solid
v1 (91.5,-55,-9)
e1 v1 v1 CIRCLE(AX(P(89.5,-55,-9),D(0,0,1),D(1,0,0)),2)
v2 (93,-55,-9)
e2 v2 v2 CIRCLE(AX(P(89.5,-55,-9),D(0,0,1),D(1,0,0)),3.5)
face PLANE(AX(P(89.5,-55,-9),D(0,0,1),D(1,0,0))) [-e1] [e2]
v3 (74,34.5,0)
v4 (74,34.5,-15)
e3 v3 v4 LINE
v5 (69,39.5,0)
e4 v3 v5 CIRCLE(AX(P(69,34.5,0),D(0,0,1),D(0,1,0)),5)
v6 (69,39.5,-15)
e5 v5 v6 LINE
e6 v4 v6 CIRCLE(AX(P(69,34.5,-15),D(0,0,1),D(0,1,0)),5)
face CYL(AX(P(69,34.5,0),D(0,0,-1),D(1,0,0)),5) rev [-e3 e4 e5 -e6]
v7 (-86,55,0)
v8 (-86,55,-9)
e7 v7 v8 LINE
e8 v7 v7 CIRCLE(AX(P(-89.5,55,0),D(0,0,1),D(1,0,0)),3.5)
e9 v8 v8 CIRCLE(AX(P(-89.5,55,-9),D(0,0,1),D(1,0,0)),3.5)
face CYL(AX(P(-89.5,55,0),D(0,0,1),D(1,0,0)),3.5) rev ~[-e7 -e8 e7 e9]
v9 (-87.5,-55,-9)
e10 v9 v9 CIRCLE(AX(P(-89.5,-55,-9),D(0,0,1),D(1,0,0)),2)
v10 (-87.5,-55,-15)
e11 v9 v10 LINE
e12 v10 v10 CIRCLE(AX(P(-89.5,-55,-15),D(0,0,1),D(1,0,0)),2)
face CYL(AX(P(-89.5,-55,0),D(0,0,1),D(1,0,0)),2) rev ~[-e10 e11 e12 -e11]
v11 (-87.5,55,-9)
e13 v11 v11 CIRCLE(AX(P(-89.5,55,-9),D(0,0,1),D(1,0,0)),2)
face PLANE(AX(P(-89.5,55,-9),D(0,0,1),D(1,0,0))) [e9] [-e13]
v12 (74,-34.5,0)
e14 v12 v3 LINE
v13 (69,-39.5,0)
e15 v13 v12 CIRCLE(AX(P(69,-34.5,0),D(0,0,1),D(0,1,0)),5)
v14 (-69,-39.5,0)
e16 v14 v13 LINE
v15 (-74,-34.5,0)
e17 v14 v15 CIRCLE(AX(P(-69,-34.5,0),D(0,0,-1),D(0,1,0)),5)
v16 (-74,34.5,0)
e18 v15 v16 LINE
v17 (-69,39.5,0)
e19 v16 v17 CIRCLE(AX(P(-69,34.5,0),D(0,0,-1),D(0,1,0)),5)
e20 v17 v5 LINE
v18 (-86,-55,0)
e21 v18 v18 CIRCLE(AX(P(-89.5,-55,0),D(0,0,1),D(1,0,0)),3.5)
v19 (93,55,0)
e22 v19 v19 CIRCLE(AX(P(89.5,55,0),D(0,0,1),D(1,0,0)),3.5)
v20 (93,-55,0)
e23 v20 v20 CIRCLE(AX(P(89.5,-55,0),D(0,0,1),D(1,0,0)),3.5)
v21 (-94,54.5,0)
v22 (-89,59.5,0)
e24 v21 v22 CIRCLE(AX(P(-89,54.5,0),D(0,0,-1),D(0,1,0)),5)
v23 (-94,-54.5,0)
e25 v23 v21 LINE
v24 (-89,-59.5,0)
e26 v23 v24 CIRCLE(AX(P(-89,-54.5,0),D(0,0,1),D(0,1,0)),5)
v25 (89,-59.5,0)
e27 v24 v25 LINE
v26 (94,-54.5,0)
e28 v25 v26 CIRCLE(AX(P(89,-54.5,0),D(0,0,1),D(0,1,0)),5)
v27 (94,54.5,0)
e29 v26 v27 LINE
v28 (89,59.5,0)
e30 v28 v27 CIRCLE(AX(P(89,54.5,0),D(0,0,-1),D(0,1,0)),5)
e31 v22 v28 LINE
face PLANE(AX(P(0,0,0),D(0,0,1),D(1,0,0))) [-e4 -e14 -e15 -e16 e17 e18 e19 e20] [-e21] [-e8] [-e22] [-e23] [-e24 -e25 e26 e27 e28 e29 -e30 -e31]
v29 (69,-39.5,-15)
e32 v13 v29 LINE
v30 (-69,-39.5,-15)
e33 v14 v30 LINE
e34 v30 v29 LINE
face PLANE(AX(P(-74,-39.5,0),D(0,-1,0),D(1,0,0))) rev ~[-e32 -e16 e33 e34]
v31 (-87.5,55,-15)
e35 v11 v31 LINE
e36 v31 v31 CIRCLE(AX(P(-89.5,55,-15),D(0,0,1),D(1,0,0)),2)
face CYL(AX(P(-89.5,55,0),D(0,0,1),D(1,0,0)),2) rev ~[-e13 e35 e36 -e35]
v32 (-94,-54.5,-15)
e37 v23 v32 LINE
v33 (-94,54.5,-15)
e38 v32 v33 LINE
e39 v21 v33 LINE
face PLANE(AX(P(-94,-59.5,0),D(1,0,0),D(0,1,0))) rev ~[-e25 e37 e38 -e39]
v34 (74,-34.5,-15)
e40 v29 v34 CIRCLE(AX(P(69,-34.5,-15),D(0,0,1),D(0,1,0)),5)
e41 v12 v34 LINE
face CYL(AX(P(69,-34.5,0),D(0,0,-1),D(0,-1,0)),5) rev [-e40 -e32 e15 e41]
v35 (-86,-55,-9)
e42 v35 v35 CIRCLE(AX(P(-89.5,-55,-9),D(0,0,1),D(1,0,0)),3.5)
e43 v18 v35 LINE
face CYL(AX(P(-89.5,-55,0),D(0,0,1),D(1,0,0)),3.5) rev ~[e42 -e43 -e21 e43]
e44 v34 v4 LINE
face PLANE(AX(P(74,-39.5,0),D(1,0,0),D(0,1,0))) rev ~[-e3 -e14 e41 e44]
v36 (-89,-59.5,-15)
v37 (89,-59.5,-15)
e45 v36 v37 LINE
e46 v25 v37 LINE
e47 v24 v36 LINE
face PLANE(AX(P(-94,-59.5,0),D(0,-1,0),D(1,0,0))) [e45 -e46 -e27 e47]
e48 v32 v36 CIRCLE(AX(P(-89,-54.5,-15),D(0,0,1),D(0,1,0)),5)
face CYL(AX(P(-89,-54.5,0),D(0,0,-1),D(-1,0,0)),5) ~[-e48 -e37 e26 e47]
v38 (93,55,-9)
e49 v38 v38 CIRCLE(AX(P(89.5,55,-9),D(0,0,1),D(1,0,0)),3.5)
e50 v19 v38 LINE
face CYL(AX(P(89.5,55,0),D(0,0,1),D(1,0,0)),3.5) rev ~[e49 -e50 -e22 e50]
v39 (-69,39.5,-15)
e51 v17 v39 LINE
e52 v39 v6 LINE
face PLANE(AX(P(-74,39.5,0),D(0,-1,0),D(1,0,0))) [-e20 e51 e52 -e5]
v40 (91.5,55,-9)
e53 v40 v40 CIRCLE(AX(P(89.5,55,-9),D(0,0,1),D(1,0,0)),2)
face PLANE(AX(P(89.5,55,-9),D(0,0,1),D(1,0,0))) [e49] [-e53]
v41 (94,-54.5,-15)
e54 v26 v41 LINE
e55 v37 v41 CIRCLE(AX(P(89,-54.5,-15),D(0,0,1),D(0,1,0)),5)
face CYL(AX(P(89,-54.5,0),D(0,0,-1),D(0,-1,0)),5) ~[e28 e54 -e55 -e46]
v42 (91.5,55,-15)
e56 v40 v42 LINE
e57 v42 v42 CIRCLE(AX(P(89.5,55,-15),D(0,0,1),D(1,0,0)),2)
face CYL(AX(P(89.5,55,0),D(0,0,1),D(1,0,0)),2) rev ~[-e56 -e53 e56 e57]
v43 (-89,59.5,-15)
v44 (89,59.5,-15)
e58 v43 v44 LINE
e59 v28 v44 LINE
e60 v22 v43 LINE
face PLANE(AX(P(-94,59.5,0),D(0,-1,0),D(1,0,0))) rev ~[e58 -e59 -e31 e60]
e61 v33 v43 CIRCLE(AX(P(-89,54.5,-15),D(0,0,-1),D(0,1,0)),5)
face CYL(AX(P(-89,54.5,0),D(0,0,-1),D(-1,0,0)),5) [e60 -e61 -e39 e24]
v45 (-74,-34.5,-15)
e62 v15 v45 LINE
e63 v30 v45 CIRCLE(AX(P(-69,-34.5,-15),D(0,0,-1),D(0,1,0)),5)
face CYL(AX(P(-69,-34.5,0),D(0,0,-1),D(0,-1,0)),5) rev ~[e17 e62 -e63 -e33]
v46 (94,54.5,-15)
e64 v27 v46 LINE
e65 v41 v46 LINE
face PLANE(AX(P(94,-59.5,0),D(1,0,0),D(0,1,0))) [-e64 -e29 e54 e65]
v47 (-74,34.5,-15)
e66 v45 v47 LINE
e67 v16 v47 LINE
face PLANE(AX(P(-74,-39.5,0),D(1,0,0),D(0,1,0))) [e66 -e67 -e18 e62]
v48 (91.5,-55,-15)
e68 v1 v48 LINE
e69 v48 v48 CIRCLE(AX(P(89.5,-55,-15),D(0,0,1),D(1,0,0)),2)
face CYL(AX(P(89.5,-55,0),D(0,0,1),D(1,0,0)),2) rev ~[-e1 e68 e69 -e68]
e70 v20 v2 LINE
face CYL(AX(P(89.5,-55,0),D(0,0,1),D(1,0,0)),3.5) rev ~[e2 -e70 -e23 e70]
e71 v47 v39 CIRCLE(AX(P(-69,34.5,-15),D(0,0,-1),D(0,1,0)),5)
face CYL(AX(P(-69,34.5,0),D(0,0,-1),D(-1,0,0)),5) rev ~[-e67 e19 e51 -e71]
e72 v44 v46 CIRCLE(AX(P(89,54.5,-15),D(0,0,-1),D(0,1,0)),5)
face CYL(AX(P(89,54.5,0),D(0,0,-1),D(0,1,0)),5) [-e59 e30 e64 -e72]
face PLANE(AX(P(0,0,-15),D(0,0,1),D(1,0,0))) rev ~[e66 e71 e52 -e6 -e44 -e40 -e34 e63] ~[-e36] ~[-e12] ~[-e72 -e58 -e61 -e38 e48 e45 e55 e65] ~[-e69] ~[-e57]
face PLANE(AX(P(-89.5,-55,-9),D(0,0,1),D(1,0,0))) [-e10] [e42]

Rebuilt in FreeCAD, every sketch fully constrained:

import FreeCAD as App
import Part
import Sketcher
from FreeCAD import Vector


def edges_at(feature, points):
    """Names of the edges that pass closest to the given points."""
    edges = feature.Shape.Edges
    near = lambda p: min(range(len(edges)), key=lambda i: edges[i].distToShape(Part.Vertex(*p))[0])
    return sorted({f"Edge{near(p) + 1}" for p in points})

doc = App.newDocument("Part")
params = doc.addObject("Spreadsheet::Sheet", "Params")
for row, (alias, value) in enumerate([
    ("sketch1_diameter", "4 mm"),
    ("sketch1_width", "188 mm"),
    ("sketch1_width2", "148 mm"),
    ("sketch1_height", "119 mm"),
    ("sketch1_height2", "79 mm"),
    ("pad1_length", "15 mm"),
    ("sketch2_diameter", "7 mm"),
    ("sketch2_diameter2", "4 mm"),
    ("pocket1_length", "9 mm"),
    ("fillet_radius", "5 mm"),
], start=1):
    params.set(f"A{row}", alias)
    params.set(f"B{row}", "=" + value)
    params.setAlias(f"B{row}", alias)

body = doc.addObject("PartDesign::Body", "Body")

# Sketch on XY plane
sketch1 = doc.addObject("Sketcher::SketchObject", "Sketch")
body.addObject(sketch1)
sketch1.AttachmentSupport = (doc.XY_Plane, [""])
sketch1.MapMode = "FlatFace"
sketch1.addGeometry([
    Part.LineSegment(Vector(-94, 59.5, 0), Vector(-94, -59.5, 0)),  # 0
    Part.LineSegment(Vector(-94, -59.5, 0), Vector(94, -59.5, 0)),  # 1
    Part.LineSegment(Vector(94, -59.5, 0), Vector(94, 59.5, 0)),  # 2
    Part.LineSegment(Vector(94, 59.5, 0), Vector(-94, 59.5, 0)),  # 3
    Part.Circle(Vector(-89.5, -55, 0), Vector(0, 0, 1), 2),  # 4
    Part.Circle(Vector(89.5, -55, 0), Vector(0, 0, 1), 2),  # 5
    Part.Circle(Vector(-89.5, 55, 0), Vector(0, 0, 1), 2),  # 6
    Part.LineSegment(Vector(74, -39.5, 0), Vector(-74, -39.5, 0)),  # 7
    Part.LineSegment(Vector(-74, -39.5, 0), Vector(-74, 39.5, 0)),  # 8
    Part.LineSegment(Vector(-74, 39.5, 0), Vector(74, 39.5, 0)),  # 9
    Part.LineSegment(Vector(74, 39.5, 0), Vector(74, -39.5, 0)),  # 10
    Part.Circle(Vector(89.5, 55, 0), Vector(0, 0, 1), 2),  # 11
], False)
sketch1.addConstraint([
    Sketcher.Constraint("Coincident", 0, 2, 1, 1),
    Sketcher.Constraint("Coincident", 1, 2, 2, 1),
    Sketcher.Constraint("Coincident", 2, 2, 3, 1),
    Sketcher.Constraint("Coincident", 3, 2, 0, 1),
    Sketcher.Constraint("Coincident", 7, 2, 8, 1),
    Sketcher.Constraint("Coincident", 8, 2, 9, 1),
    Sketcher.Constraint("Coincident", 9, 2, 10, 1),
    Sketcher.Constraint("Coincident", 10, 2, 7, 1),
    Sketcher.Constraint("Vertical", 0),
    Sketcher.Constraint("Horizontal", 1),
    Sketcher.Constraint("Vertical", 2),
    Sketcher.Constraint("Horizontal", 3),
    Sketcher.Constraint("Horizontal", 7),
    Sketcher.Constraint("Vertical", 8),
    Sketcher.Constraint("Horizontal", 9),
    Sketcher.Constraint("Vertical", 10),
    Sketcher.Constraint("Equal", 4, 5),
    Sketcher.Constraint("Equal", 5, 6),
    Sketcher.Constraint("Equal", 6, 11),
    Sketcher.Constraint("Symmetric", 5, 3, 6, 3, -1, 1),
    Sketcher.Constraint("Symmetric", 4, 3, 11, 3, -1, 1),
    Sketcher.Constraint("Symmetric", 0, 2, 2, 2, -1, 1),
    Sketcher.Constraint("Symmetric", 7, 2, 9, 2, -1, 1),
    Sketcher.Constraint("Symmetric", 4, 3, 5, 3, -2),
    Sketcher.Constraint("Diameter", 4, 4.0),
    Sketcher.Constraint("DistanceX", 1, 1, 1, 2, 188.0),
    Sketcher.Constraint("DistanceX", 7, 2, 7, 1, 148.0),
    Sketcher.Constraint("DistanceY", 0, 2, 0, 1, 119.0),
    Sketcher.Constraint("DistanceY", 8, 1, 8, 2, 79.0),
    Sketcher.Constraint("DistanceY", 4, 3, -1, 1, 55.0),
    Sketcher.Constraint("DistanceX", 4, 3, 5, 3, 179.0),
])
sketch1.setExpression("Constraints[24]", "Params.sketch1_diameter")
sketch1.setExpression("Constraints[25]", "Params.sketch1_width")
sketch1.setExpression("Constraints[26]", "Params.sketch1_width2")
sketch1.setExpression("Constraints[27]", "Params.sketch1_height")
sketch1.setExpression("Constraints[28]", "Params.sketch1_height2")
pad1 = doc.addObject("PartDesign::Pad", "Pad")
body.addObject(pad1)
pad1.Profile = sketch1
pad1.setExpression("Length", "Params.pad1_length")
pad1.Reversed = True

# Sketch on XY plane
sketch2 = doc.addObject("Sketcher::SketchObject", "Sketch001")
body.addObject(sketch2)
sketch2.AttachmentSupport = (doc.XY_Plane, [""])
sketch2.MapMode = "FlatFace"
sketch2.addGeometry([
    Part.Circle(Vector(-89.5, 55, 0), Vector(0, 0, 1), 3.5),  # 0
    Part.Circle(Vector(-89.5, 55, 0), Vector(0, 0, 1), 2),  # 1
    Part.Circle(Vector(89.5, 55, 0), Vector(0, 0, 1), 3.5),  # 2
    Part.Circle(Vector(89.5, 55, 0), Vector(0, 0, 1), 2),  # 3
    Part.Circle(Vector(89.5, -55, 0), Vector(0, 0, 1), 3.5),  # 4
    Part.Circle(Vector(89.5, -55, 0), Vector(0, 0, 1), 2),  # 5
    Part.Circle(Vector(-89.5, -55, 0), Vector(0, 0, 1), 3.5),  # 6
    Part.Circle(Vector(-89.5, -55, 0), Vector(0, 0, 1), 2),  # 7
], False)
sketch2.addConstraint([
    Sketcher.Constraint("Coincident", 1, 3, 0, 3),
    Sketcher.Constraint("Coincident", 3, 3, 2, 3),
    Sketcher.Constraint("Coincident", 5, 3, 4, 3),
    Sketcher.Constraint("Coincident", 7, 3, 6, 3),
    Sketcher.Constraint("Equal", 0, 2),
    Sketcher.Constraint("Equal", 1, 3),
    Sketcher.Constraint("Equal", 2, 4),
    Sketcher.Constraint("Equal", 3, 5),
    Sketcher.Constraint("Equal", 4, 6),
    Sketcher.Constraint("Equal", 5, 7),
    Sketcher.Constraint("Symmetric", 0, 3, 4, 3, -1, 1),
    Sketcher.Constraint("Symmetric", 2, 3, 6, 3, -1, 1),
    Sketcher.Constraint("Symmetric", 0, 3, 2, 3, -2),
    Sketcher.Constraint("Diameter", 0, 7.0),
    Sketcher.Constraint("Diameter", 1, 4.0),
    Sketcher.Constraint("DistanceY", -1, 1, 0, 3, 55.0),
    Sketcher.Constraint("DistanceX", 0, 3, 2, 3, 179.0),
])
sketch2.setExpression("Constraints[13]", "Params.sketch2_diameter")
sketch2.setExpression("Constraints[14]", "Params.sketch2_diameter2")
pocket1 = doc.addObject("PartDesign::Pocket", "Pocket")
body.addObject(pocket1)
pocket1.Profile = sketch2
pocket1.setExpression("Length", "Params.pocket1_length")
doc.recompute()

fillet = doc.addObject("PartDesign::Fillet", "Fillet")
body.addObject(fillet)
fillet.Base = (pocket1, edges_at(pocket1, [
    (94, 59.5, -7.5),
    (-94, 59.5, -7.5),
    (-94, -59.5, -7.5),
    (94, -59.5, -7.5),
    (-74, 39.5, -7.5),
    (74, 39.5, -7.5),
    (74, -39.5, -7.5),
    (-74, -39.5, -7.5),
]))
fillet.setExpression("Radius", "Params.fillet_radius")

doc.recompute()
